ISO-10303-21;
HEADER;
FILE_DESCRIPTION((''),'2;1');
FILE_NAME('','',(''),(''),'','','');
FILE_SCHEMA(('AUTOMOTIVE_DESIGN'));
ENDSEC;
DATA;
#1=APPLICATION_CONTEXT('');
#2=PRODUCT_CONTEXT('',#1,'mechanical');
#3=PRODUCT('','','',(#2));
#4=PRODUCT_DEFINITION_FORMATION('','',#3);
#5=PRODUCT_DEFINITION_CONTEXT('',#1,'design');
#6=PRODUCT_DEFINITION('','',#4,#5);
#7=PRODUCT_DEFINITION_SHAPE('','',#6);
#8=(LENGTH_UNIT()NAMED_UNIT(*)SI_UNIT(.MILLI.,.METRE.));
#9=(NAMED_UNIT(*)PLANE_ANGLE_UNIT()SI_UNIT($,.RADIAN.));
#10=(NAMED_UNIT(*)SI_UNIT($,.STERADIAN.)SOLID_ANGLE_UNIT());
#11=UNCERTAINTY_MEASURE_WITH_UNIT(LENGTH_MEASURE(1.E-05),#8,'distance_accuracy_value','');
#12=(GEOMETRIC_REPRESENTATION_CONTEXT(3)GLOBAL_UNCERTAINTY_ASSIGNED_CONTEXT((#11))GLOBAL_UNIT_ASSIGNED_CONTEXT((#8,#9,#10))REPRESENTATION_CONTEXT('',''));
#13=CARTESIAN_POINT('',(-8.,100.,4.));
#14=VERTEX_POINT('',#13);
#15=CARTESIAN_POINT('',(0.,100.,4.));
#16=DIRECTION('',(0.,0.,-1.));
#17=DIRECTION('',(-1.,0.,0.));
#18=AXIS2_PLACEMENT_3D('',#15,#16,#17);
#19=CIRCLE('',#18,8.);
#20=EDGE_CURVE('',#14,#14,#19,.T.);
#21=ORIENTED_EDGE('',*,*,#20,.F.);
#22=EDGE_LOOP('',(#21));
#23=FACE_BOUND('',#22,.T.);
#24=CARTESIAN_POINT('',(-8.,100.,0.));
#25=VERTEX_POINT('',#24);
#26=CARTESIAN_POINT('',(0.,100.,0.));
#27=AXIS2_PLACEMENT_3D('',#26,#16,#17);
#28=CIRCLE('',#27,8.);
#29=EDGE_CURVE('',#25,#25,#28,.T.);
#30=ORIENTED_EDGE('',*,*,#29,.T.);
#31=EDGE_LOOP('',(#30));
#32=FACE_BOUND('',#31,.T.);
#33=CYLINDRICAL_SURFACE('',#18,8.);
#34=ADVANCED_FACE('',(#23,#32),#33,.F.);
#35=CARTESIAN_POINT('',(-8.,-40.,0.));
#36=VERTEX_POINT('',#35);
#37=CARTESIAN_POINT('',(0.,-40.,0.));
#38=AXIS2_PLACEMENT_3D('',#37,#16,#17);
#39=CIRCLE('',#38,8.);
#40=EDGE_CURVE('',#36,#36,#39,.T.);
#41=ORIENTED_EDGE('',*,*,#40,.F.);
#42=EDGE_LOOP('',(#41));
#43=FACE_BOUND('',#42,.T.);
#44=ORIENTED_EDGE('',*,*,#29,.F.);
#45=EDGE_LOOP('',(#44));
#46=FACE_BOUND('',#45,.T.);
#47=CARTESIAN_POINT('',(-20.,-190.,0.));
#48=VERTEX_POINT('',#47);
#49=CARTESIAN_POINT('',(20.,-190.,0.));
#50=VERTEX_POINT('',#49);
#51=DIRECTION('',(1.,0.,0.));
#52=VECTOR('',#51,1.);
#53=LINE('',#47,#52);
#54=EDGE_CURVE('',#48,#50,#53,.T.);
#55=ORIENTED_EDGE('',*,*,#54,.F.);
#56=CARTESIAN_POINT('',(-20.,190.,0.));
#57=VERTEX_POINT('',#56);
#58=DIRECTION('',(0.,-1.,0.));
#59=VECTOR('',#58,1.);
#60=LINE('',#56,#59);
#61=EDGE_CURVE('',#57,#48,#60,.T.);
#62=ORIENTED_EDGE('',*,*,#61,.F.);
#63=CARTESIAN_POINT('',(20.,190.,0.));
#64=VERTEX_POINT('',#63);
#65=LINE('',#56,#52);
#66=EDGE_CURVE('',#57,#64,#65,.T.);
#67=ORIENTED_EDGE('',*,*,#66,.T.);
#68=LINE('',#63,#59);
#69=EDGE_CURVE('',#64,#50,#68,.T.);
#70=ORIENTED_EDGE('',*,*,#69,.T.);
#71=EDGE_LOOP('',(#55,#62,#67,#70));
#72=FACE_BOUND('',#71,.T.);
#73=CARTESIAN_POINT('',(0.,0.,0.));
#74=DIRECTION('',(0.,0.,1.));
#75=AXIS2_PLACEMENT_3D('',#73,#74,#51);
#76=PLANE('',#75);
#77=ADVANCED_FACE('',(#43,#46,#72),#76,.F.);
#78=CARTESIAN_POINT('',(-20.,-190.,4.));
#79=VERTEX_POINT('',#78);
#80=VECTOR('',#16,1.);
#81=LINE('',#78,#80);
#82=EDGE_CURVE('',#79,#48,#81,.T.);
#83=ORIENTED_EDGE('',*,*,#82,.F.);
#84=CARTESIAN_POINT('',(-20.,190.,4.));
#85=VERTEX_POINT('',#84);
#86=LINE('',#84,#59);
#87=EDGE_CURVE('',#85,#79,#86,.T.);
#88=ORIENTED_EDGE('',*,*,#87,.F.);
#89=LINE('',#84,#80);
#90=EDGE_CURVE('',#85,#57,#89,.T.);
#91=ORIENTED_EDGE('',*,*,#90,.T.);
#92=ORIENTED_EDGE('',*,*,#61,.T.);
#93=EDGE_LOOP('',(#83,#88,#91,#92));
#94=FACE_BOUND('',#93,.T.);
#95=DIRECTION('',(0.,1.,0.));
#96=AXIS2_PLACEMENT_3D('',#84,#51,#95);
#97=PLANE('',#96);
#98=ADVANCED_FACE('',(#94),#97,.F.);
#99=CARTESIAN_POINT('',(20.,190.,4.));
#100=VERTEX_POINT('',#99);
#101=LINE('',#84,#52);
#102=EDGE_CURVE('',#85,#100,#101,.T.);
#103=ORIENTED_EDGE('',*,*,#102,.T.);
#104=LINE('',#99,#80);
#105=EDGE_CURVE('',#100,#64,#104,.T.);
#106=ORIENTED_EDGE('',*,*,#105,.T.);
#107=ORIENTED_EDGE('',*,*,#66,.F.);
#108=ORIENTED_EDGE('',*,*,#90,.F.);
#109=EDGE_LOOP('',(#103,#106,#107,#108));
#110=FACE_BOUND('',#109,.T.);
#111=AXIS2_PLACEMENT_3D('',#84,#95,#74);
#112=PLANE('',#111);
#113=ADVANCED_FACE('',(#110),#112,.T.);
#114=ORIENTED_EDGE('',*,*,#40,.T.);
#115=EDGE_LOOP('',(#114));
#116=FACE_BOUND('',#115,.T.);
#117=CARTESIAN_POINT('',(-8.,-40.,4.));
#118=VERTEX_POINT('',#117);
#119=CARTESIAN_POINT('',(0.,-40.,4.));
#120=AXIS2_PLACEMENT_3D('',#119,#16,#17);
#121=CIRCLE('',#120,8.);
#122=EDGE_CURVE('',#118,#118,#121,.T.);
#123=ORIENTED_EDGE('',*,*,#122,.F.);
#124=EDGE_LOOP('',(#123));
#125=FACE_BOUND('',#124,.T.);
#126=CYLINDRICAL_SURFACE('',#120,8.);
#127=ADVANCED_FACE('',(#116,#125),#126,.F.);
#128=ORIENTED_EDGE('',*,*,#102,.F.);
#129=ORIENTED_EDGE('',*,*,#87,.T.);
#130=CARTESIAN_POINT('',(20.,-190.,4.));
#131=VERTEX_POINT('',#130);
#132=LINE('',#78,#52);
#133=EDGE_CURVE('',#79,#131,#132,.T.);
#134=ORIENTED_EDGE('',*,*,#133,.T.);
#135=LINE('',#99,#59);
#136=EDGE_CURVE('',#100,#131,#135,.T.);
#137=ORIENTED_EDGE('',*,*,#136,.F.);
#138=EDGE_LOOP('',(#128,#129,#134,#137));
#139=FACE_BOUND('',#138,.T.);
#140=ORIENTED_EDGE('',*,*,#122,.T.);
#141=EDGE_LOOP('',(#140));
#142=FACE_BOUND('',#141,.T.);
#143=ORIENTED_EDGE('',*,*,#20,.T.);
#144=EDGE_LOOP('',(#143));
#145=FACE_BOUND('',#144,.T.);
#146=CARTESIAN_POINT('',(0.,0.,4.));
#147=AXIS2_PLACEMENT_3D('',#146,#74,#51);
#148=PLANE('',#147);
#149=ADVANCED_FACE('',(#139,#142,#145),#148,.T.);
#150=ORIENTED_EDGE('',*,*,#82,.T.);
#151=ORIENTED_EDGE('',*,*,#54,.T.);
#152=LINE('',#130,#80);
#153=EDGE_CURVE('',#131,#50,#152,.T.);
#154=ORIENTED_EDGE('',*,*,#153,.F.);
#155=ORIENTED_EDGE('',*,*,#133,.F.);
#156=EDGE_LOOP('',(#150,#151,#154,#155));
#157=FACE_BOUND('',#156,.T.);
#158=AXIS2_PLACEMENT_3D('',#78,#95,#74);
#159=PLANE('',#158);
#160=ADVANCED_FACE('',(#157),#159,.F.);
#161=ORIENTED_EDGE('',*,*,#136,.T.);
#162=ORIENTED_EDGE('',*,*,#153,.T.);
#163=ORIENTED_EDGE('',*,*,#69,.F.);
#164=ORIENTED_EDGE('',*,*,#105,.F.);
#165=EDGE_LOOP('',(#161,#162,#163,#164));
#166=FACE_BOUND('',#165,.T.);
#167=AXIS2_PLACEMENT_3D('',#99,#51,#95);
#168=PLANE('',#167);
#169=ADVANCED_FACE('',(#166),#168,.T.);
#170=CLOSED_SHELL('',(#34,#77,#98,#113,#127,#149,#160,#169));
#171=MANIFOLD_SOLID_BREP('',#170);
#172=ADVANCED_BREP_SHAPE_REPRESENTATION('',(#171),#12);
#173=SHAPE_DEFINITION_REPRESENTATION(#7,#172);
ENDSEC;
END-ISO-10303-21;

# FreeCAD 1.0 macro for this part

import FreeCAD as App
import Part
import Sketcher
from FreeCAD import Vector
Q = App.Units.Quantity

doc = App.newDocument("Part")
body = doc.addObject("PartDesign::Body", "Body")

# Sketch on XY plane
sketch1 = doc.addObject("Sketcher::SketchObject", "Sketch")
body.addObject(sketch1)
sketch1.AttachmentSupport = (doc.XY_Plane, [""])
sketch1.MapMode = "FlatFace"
sketch1.addGeometry([
    Part.LineSegment(Vector(-20, 190, 0), Vector(-20, -190, 0)),
    Part.LineSegment(Vector(-20, -190, 0), Vector(20, -190, 0)),
    Part.LineSegment(Vector(20, -190, 0), Vector(20, 190, 0)),
    Part.LineSegment(Vector(20, 190, 0), Vector(-20, 190, 0)),
], False)
sketch1.addConstraint([
    Sketcher.Constraint("Coincident", 0, 2, 1, 1),
    Sketcher.Constraint("Coincident", 1, 2, 2, 1),
    Sketcher.Constraint("Coincident", 2, 2, 3, 1),
    Sketcher.Constraint("Coincident", 3, 2, 0, 1),
    Sketcher.Constraint("Vertical", 0),
    Sketcher.Constraint("Horizontal", 1),
    Sketcher.Constraint("Vertical", 2),
    Sketcher.Constraint("Horizontal", 3),
    Sketcher.Constraint("Symmetric", 0, 2, 2, 2, -1, 1),
    Sketcher.Constraint("DistanceX", 1, 1, 1, 2, Q("40 mm")),
    Sketcher.Constraint("DistanceY", 0, 2, 0, 1, Q("380 mm")),
])
pad1 = doc.addObject("PartDesign::Pad", "Pad")
body.addObject(pad1)
pad1.Profile = sketch1
pad1.Length = 4

# Sketch on XY plane
sketch2 = doc.addObject("Sketcher::SketchObject", "Sketch001")
body.addObject(sketch2)
sketch2.AttachmentSupport = (doc.XY_Plane, [""])
sketch2.MapMode = "FlatFace"
sketch2.addGeometry([
    Part.Circle(Vector(0, 100, 0), Vector(0, 0, 1), 8),
    Part.Circle(Vector(0, -40, 0), Vector(0, 0, 1), 8),
], False)
sketch2.addConstraint([
    Sketcher.Constraint("Equal", 0, 1),
    Sketcher.Constraint("PointOnObject", 0, 3, -2),
    Sketcher.Constraint("PointOnObject", 1, 3, -2),
    Sketcher.Constraint("Diameter", 0, Q("16 mm")),
    Sketcher.Constraint("DistanceY", -1, 1, 0, 3, Q("100 mm")),
    Sketcher.Constraint("DistanceY", 1, 3, -1, 1, Q("40 mm")),
])
pocket1 = doc.addObject("PartDesign::Pocket", "Pocket")
body.addObject(pocket1)
pocket1.Profile = sketch2
pocket1.Length = 4
pocket1.Reversed = True

doc.recompute()
